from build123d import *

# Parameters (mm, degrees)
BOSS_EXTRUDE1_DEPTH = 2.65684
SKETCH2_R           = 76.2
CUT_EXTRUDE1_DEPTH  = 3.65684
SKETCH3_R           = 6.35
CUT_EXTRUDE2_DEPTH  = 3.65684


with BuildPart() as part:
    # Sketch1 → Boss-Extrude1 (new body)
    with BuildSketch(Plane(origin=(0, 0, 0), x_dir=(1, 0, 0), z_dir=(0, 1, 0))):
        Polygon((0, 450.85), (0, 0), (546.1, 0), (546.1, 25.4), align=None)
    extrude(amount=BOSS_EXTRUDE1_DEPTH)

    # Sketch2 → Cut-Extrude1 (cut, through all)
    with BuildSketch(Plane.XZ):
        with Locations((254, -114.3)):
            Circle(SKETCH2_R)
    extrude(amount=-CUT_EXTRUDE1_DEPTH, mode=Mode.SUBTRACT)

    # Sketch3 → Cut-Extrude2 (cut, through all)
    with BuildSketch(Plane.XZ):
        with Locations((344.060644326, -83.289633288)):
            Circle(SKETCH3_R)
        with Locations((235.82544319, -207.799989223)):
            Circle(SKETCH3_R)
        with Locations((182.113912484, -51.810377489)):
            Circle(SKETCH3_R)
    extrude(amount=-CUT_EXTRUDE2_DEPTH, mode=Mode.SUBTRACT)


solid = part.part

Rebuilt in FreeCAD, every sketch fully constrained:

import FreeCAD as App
import Part
import Sketcher

V = App.Vector
Q = App.Units.Quantity


def add_polygon(sketch, points):
    """Adds a closed chain of lines whose ends are joined by coincident constraints."""
    first, n = sketch.GeometryCount, len(points)
    for a, b in zip(points, points[1:] + points[:1]):
        sketch.addGeometry(Part.LineSegment(App.Vector(*a, 0), App.Vector(*b, 0)), False)
    for i in range(n):
        sketch.addConstraint(Sketcher.Constraint("Coincident", first + i, 2, first + (i + 1) % n, 1))

doc = App.newDocument("Part")
body = doc.addObject("PartDesign::Body", "Body")

sketch1 = doc.addObject("Sketcher::SketchObject", "Sketch")
body.addObject(sketch1)
sketch1.AttachmentSupport = (doc.XZ_Plane, [""])
sketch1.MapMode = "FlatFace"
add_polygon(sketch1, [(0, -451), (0, 0), (546, 0), (546, -25)])
sketch1.addConstraint(Sketcher.Constraint("Vertical", 0))
sketch1.addConstraint(Sketcher.Constraint("Horizontal", 1))
sketch1.addConstraint(Sketcher.Constraint("Vertical", 2))
sketch1.addConstraint(Sketcher.Constraint("Coincident", 0, 2, -1, 1))
sketch1.addConstraint(Sketcher.Constraint("DistanceY", 2, 2, 2, 1, Q("1 in")))
sketch1.addConstraint(Sketcher.Constraint("DistanceX", 1, 1, 1, 2, Q("21.5 in")))
sketch1.addConstraint(Sketcher.Constraint("DistanceY", 0, 1, 0, 2, Q("17.75 in")))
pad1 = doc.addObject("PartDesign::Pad", "Pad")
body.addObject(pad1)
pad1.Profile = sketch1
pad1.Length = Q("0.1046 in")
pad1.Reversed = True

sketch2 = doc.addObject("Sketcher::SketchObject", "Sketch001")
body.addObject(sketch2)
sketch2.AttachmentSupport = (doc.XZ_Plane, [""])
sketch2.MapMode = "FlatFace"
sketch2.addGeometry(Part.Circle(V(254, -114, 0), V(0, 0, 1), 76), False)
sketch2.addConstraint(Sketcher.Constraint("Diameter", 0, Q("6 in")))
sketch2.addConstraint(Sketcher.Constraint("DistanceX", -1, 1, 0, 3, Q("10 in")))
sketch2.addConstraint(Sketcher.Constraint("DistanceY", 0, 3, -1, 1, Q("4.5 in")))
pocket1 = doc.addObject("PartDesign::Pocket", "Pocket")
body.addObject(pocket1)
pocket1.Profile = sketch2
pocket1.Type = "ThroughAll"

sketch3 = doc.addObject("Sketcher::SketchObject", "Sketch002")
body.addObject(sketch3)
sketch3.AttachmentSupport = (doc.XZ_Plane, [""])
sketch3.MapMode = "FlatFace"
sketch3.addGeometry(Part.Circle(V(344, -83, 0), V(0, 0, 1), 6), False)
sketch3.addGeometry(Part.Circle(V(236, -208, 0), V(0, 0, 1), 6), False)
sketch3.addGeometry(Part.Circle(V(182, -52, 0), V(0, 0, 1), 6), False)
sketch3.addConstraint(Sketcher.Constraint("Equal", 0, 1))
sketch3.addConstraint(Sketcher.Constraint("Equal", 1, 2))
sketch3.addConstraint(Sketcher.Constraint("Diameter", 0, Q("0.5 in")))
sketch3.addConstraint(Sketcher.Constraint("DistanceX", 1, 3, 0, 3, Q("108.235201 mm")))
sketch3.addConstraint(Sketcher.Constraint("DistanceY", 1, 3, -1, 1, Q("207.799989 mm")))
sketch3.addConstraint(Sketcher.Constraint("DistanceX", 2, 3, 1, 3, Q("53.711531 mm")))
sketch3.addConstraint(Sketcher.Constraint("DistanceY", 1, 3, 2, 3, Q("155.989612 mm")))
sketch3.addConstraint(Sketcher.Constraint("DistanceX", -1, 1, 0, 3, Q("344.060644 mm")))
sketch3.addConstraint(Sketcher.Constraint("DistanceY", 0, 3, -1, 1, Q("83.289633 mm")))
pocket2 = doc.addObject("PartDesign::Pocket", "Pocket001")
body.addObject(pocket2)
pocket2.Profile = sketch3
pocket2.Type = "ThroughAll"

doc.recompute()
